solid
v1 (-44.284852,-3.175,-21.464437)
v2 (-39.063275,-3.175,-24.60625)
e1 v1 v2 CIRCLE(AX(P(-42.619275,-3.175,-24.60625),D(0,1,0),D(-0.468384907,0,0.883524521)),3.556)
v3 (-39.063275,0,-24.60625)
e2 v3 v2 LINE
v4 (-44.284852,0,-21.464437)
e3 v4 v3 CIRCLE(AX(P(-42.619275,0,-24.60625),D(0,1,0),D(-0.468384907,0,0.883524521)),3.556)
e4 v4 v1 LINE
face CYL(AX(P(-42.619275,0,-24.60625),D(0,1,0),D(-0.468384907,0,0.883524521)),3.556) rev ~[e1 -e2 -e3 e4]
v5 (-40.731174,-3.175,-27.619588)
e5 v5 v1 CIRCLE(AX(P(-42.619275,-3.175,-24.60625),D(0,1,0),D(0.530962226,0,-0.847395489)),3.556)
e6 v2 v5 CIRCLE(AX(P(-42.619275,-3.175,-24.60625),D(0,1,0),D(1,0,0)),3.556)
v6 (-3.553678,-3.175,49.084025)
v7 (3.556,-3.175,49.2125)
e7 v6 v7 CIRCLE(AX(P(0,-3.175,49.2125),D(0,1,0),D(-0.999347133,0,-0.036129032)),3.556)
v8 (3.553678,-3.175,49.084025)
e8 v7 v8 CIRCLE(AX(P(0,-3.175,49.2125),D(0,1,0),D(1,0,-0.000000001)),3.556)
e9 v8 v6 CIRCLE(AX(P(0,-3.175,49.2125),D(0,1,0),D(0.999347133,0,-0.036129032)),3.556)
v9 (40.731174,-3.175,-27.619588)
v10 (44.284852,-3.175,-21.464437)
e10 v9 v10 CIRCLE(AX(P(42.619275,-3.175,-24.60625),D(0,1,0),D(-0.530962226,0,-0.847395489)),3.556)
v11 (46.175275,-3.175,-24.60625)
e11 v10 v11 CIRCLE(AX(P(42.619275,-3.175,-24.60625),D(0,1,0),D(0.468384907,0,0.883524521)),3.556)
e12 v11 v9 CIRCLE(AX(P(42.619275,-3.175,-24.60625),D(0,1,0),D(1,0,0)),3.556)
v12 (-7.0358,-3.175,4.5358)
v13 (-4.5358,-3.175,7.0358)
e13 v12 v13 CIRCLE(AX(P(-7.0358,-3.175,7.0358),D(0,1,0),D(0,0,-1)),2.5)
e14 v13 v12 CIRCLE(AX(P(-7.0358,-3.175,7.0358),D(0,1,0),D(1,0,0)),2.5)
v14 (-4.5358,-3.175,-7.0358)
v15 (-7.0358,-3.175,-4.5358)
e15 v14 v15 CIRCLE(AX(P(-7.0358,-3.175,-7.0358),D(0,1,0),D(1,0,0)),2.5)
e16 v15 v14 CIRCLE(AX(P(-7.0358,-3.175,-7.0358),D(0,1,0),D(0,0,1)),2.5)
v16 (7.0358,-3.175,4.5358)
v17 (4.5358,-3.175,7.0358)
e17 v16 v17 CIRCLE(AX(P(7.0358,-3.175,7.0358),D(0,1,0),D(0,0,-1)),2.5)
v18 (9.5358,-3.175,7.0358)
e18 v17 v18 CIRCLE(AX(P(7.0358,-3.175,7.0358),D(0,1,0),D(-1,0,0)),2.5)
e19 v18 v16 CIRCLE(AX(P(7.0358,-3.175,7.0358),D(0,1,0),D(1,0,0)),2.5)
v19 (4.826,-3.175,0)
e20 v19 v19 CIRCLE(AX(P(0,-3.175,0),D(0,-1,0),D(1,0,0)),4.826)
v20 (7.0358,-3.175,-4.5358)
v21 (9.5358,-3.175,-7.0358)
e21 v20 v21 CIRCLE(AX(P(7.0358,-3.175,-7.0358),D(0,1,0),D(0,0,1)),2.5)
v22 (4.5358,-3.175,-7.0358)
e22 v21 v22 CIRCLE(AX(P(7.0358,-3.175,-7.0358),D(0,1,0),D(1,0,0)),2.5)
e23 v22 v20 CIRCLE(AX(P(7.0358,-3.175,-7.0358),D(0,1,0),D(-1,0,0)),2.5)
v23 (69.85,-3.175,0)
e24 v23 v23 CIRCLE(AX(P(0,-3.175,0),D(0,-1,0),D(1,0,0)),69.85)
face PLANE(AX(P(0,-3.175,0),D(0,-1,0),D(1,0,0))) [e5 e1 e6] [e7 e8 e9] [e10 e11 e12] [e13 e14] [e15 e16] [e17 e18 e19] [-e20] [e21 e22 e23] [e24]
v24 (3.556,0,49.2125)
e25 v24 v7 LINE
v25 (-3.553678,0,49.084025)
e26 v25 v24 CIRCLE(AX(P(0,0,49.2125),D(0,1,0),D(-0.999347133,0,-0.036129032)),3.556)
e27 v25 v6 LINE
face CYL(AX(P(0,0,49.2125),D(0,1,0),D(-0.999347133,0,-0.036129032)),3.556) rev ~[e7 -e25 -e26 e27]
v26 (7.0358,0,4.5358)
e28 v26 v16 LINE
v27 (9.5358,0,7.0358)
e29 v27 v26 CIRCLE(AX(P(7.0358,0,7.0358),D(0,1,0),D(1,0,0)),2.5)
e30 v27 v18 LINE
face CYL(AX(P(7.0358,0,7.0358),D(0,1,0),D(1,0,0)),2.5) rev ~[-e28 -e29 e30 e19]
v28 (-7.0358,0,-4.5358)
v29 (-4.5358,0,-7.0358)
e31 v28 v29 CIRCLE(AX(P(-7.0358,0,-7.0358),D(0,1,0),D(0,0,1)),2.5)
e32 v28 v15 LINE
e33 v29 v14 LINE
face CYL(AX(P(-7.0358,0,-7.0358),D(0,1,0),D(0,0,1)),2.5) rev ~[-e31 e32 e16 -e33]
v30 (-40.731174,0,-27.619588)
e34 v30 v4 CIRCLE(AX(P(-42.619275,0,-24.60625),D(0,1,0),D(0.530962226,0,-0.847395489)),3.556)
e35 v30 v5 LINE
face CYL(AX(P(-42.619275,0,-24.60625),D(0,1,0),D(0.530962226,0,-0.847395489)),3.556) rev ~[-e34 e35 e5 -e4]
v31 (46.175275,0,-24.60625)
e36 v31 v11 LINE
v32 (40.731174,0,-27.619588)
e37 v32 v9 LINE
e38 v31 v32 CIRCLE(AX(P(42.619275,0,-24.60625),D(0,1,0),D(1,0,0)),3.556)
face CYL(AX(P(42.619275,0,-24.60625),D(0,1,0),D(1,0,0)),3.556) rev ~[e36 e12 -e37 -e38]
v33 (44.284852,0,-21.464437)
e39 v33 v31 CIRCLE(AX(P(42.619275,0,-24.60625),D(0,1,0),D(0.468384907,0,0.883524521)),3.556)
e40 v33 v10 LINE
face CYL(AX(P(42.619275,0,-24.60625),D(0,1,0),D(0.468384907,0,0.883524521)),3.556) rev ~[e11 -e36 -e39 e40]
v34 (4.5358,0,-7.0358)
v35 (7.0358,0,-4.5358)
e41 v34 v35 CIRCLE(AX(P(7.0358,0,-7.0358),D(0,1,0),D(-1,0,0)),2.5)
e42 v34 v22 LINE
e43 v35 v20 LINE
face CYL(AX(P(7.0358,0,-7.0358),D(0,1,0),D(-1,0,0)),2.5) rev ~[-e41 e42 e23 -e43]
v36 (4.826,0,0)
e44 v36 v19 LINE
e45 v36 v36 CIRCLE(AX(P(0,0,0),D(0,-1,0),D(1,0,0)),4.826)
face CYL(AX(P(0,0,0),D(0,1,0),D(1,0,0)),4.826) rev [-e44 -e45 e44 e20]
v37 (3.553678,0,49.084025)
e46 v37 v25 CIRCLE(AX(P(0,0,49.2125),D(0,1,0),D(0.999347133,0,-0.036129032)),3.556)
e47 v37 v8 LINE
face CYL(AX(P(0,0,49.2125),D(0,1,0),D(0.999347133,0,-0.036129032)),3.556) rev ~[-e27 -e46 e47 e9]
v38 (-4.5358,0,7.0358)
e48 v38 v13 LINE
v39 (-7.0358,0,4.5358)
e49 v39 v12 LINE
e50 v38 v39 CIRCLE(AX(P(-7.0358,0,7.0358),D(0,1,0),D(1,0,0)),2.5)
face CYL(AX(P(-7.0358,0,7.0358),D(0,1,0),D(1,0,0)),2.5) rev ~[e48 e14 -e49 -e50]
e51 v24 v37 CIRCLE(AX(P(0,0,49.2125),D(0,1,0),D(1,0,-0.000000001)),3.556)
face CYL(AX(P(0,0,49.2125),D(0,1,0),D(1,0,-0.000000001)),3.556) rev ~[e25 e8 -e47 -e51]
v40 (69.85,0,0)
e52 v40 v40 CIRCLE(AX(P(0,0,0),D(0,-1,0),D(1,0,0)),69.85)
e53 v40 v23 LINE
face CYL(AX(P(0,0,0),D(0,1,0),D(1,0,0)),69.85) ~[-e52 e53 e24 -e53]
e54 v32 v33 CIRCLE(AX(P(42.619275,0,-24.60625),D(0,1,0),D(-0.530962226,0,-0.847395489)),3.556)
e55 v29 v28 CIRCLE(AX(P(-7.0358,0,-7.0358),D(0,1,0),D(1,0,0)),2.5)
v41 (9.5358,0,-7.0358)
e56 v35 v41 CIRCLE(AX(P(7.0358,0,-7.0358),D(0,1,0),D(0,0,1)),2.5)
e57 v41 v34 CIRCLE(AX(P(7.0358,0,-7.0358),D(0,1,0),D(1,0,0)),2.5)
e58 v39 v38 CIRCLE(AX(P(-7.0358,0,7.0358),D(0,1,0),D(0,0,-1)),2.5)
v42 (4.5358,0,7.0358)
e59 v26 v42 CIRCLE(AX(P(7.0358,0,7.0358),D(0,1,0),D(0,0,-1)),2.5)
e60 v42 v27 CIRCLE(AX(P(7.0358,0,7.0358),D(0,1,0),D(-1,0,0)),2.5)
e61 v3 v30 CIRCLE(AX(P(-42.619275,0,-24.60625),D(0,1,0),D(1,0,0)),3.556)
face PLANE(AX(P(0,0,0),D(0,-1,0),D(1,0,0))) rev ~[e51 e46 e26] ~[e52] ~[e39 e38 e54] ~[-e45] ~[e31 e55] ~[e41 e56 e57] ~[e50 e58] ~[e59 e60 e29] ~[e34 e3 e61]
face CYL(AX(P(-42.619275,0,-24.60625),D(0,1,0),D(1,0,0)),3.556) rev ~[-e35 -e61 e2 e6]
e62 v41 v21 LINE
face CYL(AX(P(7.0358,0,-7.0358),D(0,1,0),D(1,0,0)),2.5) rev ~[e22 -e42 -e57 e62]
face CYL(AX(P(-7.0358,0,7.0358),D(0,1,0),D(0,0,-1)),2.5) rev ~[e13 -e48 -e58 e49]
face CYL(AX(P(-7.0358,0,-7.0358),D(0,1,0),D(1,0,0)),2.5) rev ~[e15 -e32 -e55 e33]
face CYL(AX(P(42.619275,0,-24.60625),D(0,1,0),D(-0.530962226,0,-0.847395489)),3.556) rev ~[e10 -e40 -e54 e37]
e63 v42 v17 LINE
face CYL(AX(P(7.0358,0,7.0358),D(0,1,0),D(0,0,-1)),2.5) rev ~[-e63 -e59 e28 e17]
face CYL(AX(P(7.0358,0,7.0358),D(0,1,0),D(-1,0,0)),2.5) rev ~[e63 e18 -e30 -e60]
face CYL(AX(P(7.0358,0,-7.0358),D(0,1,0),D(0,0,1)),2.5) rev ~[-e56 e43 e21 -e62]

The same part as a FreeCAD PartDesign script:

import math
import FreeCAD as App
import Part
import Sketcher

V = App.Vector
Q = App.Units.Quantity

doc = App.newDocument("Part")
body = doc.addObject("PartDesign::Body", "Body")

# Sketch on XZ plane
sketch1 = body.newObject("Sketcher::SketchObject", "Sketch")
sketch1.AttachmentSupport = (doc.getObject("XZ_Plane"), [""])
sketch1.MapMode = "FlatFace"
sketch1.addGeometry(Part.Circle(V(0, 0, 0), V(0, 0, 1), 69.85), False)
sketch1.addGeometry(Part.ArcOfCircle(Part.Circle(V(-42.62, -24.61, 0), V(0, 0, 1), 3.56), math.radians(118), math.radians(302)), False)
sketch1.addGeometry(Part.ArcOfCircle(Part.Circle(V(-42.62, -24.61, 0), V(0, 0, 1), 3.56), math.radians(0), math.radians(118)), False)
sketch1.addGeometry(Part.ArcOfCircle(Part.Circle(V(-42.62, -24.61, 0), V(0, 0, 1), 3.56), math.radians(-58), math.radians(0)), False)
sketch1.addGeometry(Part.ArcOfCircle(Part.Circle(V(-7.04, -7.04, 0), V(0, 0, 1), 2.5), math.radians(90), math.radians(360)), False)
sketch1.addGeometry(Part.ArcOfCircle(Part.Circle(V(-7.04, -7.04, 0), V(0, 0, 1), 2.5), math.radians(0), math.radians(90)), False)
sketch1.addGeometry(Part.ArcOfCircle(Part.Circle(V(-7.04, 7.04, 0), V(0, 0, 1), 2.5), math.radians(0), math.radians(270)), False)
sketch1.addGeometry(Part.ArcOfCircle(Part.Circle(V(-7.04, 7.04, 0), V(0, 0, 1), 2.5), math.radians(-90), math.radians(0)), False)
sketch1.addGeometry(Part.ArcOfCircle(Part.Circle(V(42.62, -24.61, 0), V(0, 0, 1), 3.56), math.radians(-122), math.radians(0)), False)
sketch1.addGeometry(Part.ArcOfCircle(Part.Circle(V(42.62, -24.61, 0), V(0, 0, 1), 3.56), math.radians(62), math.radians(238)), False)
sketch1.addGeometry(Part.ArcOfCircle(Part.Circle(V(42.62, -24.61, 0), V(0, 0, 1), 3.56), math.radians(0), math.radians(62)), False)
sketch1.addGeometry(Part.ArcOfCircle(Part.Circle(V(7.04, -7.04, 0), V(0, 0, 1), 2.5), math.radians(180), math.radians(360)), False)
sketch1.addGeometry(Part.ArcOfCircle(Part.Circle(V(7.04, -7.04, 0), V(0, 0, 1), 2.5), math.radians(90), math.radians(180)), False)
sketch1.addGeometry(Part.ArcOfCircle(Part.Circle(V(7.04, -7.04, 0), V(0, 0, 1), 2.5), math.radians(0), math.radians(90)), False)
sketch1.addGeometry(Part.Circle(V(0, 0, 0), V(0, 0, 1), 4.83), False)
sketch1.addGeometry(Part.ArcOfCircle(Part.Circle(V(7.04, 7.04, 0), V(0, 0, 1), 2.5), math.radians(-90), math.radians(0)), False)
sketch1.addGeometry(Part.ArcOfCircle(Part.Circle(V(7.04, 7.04, 0), V(0, 0, 1), 2.5), math.radians(180), math.radians(270)), False)
sketch1.addGeometry(Part.ArcOfCircle(Part.Circle(V(7.04, 7.04, 0), V(0, 0, 1), 2.5), math.radians(0), math.radians(180)), False)
sketch1.addGeometry(Part.ArcOfCircle(Part.Circle(V(0, 49.21, 0), V(0, 0, 1), 3.56), math.radians(-2.07), math.radians(0)), False)
sketch1.addGeometry(Part.ArcOfCircle(Part.Circle(V(0, 49.21, 0), V(0, 0, 1), 3.56), math.radians(-178), math.radians(-2)), False)
sketch1.addGeometry(Part.ArcOfCircle(Part.Circle(V(0, 49.21, 0), V(0, 0, 1), 3.56), math.radians(0), math.radians(182)), False)
sketch1.addConstraint(Sketcher.Constraint("Tangent", 1, 1, 2, 2))
sketch1.addConstraint(Sketcher.Constraint("Tangent", 2, 1, 3, 2))
sketch1.addConstraint(Sketcher.Constraint("Tangent", 3, 1, 1, 2))
sketch1.addConstraint(Sketcher.Constraint("Tangent", 4, 1, 5, 2))
sketch1.addConstraint(Sketcher.Constraint("Coincident", 5, 1, 4, 2))
sketch1.addConstraint(Sketcher.Constraint("Tangent", 6, 1, 7, 2))
sketch1.addConstraint(Sketcher.Constraint("Coincident", 7, 1, 6, 2))
sketch1.addConstraint(Sketcher.Constraint("Tangent", 8, 1, 9, 2))
sketch1.addConstraint(Sketcher.Constraint("Tangent", 9, 1, 10, 2))
sketch1.addConstraint(Sketcher.Constraint("Tangent", 10, 1, 8, 2))
sketch1.addConstraint(Sketcher.Constraint("Tangent", 11, 1, 12, 2))
sketch1.addConstraint(Sketcher.Constraint("Tangent", 12, 1, 13, 2))
sketch1.addConstraint(Sketcher.Constraint("Tangent", 13, 1, 11, 2))
sketch1.addConstraint(Sketcher.Constraint("Tangent", 15, 1, 16, 2))
sketch1.addConstraint(Sketcher.Constraint("Tangent", 16, 1, 17, 2))
sketch1.addConstraint(Sketcher.Constraint("Tangent", 17, 1, 15, 2))
sketch1.addConstraint(Sketcher.Constraint("Tangent", 18, 1, 19, 2))
sketch1.addConstraint(Sketcher.Constraint("Tangent", 19, 1, 20, 2))
sketch1.addConstraint(Sketcher.Constraint("Tangent", 20, 1, 18, 2))
sketch1.addConstraint(Sketcher.Constraint("Coincident", 0, 3, -1, 1))
sketch1.addConstraint(Sketcher.Constraint("Coincident", 14, 3, -1, 1))
sketch1.addConstraint(Sketcher.Constraint("Equal", 5, 6))
sketch1.addConstraint(Sketcher.Constraint("Equal", 3, 8))
sketch1.addConstraint(Sketcher.Constraint("Equal", 7, 11))
sketch1.addConstraint(Sketcher.Constraint("Equal", 13, 15))
sketch1.addConstraint(Sketcher.Constraint("Equal", 10, 18))
sketch1.addConstraint(Sketcher.Constraint("Symmetric", 6, 3, 11, 3, -1, 1))
sketch1.addConstraint(Sketcher.Constraint("Symmetric", 4, 3, 15, 3, -1, 1))
sketch1.addConstraint(Sketcher.Constraint("Symmetric", 1, 3, 8, 3, -2))
sketch1.addConstraint(Sketcher.Constraint("Symmetric", 4, 3, 11, 3, -2))
sketch1.addConstraint(Sketcher.Constraint("Symmetric", 18, 1, 19, 1, -2))
sketch1.addConstraint(Sketcher.Constraint("Horizontal", 10, 3, 2, 1))
sketch1.addConstraint(Sketcher.Constraint("Horizontal", 13, 3, 5, 1))
sketch1.addConstraint(Sketcher.Constraint("Horizontal", 17, 3, 6, 1))
sketch1.addConstraint(Sketcher.Constraint("Horizontal", 3, 1, 8, 1))
sketch1.addConstraint(Sketcher.Constraint("Horizontal", 1, 1, 9, 1))
sketch1.addConstraint(Sketcher.Constraint("Horizontal", 2, 1, 10, 1))
sketch1.addConstraint(Sketcher.Constraint("Horizontal", 5, 1, 11, 1))
sketch1.addConstraint(Sketcher.Constraint("Horizontal", 11, 1, 13, 1))
sketch1.addConstraint(Sketcher.Constraint("Horizontal", 6, 1, 16, 1))
sketch1.addConstraint(Sketcher.Constraint("Horizontal", 16, 1, 17, 1))
sketch1.addConstraint(Sketcher.Constraint("Horizontal", 19, 3, 20, 1))
sketch1.addConstraint(Sketcher.Constraint("Vertical", 7, 3, 4, 1))
sketch1.addConstraint(Sketcher.Constraint("Vertical", 4, 1, 7, 1))
sketch1.addConstraint(Sketcher.Constraint("Vertical", 17, 3, 12, 1))
sketch1.addConstraint(Sketcher.Constraint("Vertical", 12, 1, 15, 1))
sketch1.addConstraint(Sketcher.Constraint("Diameter", 0, Q("5.5 in")))
sketch1.addConstraint(Sketcher.Constraint("Diameter", 14, Q("0.38 in")))
sketch1.addConstraint(Sketcher.Constraint("Radius", 1, Q("0.14 in")))
sketch1.addConstraint(Sketcher.Constraint("Radius", 4, 2.5))
sketch1.addConstraint(Sketcher.Constraint("DistanceY", 1, 3, -1, 1, Q("0.96875 in")))
sketch1.addConstraint(Sketcher.Constraint("DistanceX", 4, 3, -1, 1, Q("0.277 in")))
sketch1.addConstraint(Sketcher.Constraint("DistanceY", 4, 3, -1, 1, Q("0.277 in")))
sketch1.addConstraint(Sketcher.Constraint("DistanceY", -1, 1, 18, 3, Q("1.9375 in")))
sketch1.addConstraint(Sketcher.Constraint("DistanceX", 3, 1, 2, 1, 1.667898))
sketch1.addConstraint(Sketcher.Constraint("DistanceX", 1, 1, -1, 1, 44.284852))
sketch1.addConstraint(Sketcher.Constraint("DistanceX", -1, 1, 18, 1, 3.553678))
sketch1.addConstraint(Sketcher.Constraint("DistanceX", 1, 1, 3, 1, 3.553678))
pad1 = body.newObject("PartDesign::Pad", "Pad")
pad1.Profile = sketch1
pad1.Length = Q("0.125 in")

doc.recompute()
